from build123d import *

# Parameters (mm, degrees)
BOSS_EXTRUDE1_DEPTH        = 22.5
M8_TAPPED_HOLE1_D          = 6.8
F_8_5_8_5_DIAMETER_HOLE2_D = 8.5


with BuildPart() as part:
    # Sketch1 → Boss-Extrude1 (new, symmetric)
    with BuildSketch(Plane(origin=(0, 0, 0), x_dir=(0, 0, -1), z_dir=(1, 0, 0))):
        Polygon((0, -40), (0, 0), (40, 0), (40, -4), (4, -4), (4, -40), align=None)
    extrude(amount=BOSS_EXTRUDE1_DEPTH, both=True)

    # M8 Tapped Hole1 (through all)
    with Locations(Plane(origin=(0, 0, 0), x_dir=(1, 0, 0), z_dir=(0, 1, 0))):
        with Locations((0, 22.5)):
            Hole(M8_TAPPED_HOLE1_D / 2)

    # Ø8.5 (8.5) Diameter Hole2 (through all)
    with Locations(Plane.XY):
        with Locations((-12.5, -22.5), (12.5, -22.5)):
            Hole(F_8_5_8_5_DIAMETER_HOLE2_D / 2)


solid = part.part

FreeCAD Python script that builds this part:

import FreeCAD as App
import Part
import Sketcher
Q = App.Units.Quantity


def add_polygon(sketch, points):
    """Adds a closed chain of lines whose ends are joined by coincident constraints."""
    first, n = sketch.GeometryCount, len(points)
    for a, b in zip(points, points[1:] + points[:1]):
        sketch.addGeometry(Part.LineSegment(App.Vector(*a, 0), App.Vector(*b, 0)), False)
    for i in range(n):
        sketch.addConstraint(Sketcher.Constraint("Coincident", first + i, 2, first + (i + 1) % n, 1))

doc = App.newDocument("Part")
body = doc.addObject("PartDesign::Body", "Body")

# Sketch on YZ plane
sketch1 = body.newObject("Sketcher::SketchObject", "Sketch")
sketch1.AttachmentSupport = (doc.getObject("YZ_Plane"), [""])
sketch1.MapMode = "FlatFace"
add_polygon(sketch1, [(0, 0), (-40, 0), (-40, -4), (-4, -4), (-4, -40), (0, -40)])  # lines 0-5
sketch1.addConstraint([
    Sketcher.Constraint("Horizontal", 0),
    Sketcher.Constraint("Vertical", 1),
    Sketcher.Constraint("Horizontal", 2),
    Sketcher.Constraint("Vertical", 3),
    Sketcher.Constraint("Horizontal", 4),
    Sketcher.Constraint("Vertical", 5),
    Sketcher.Constraint("Coincident", 5, 2, -1, 1),
    Sketcher.Constraint("Equal", 4, 1),
    Sketcher.Constraint("Equal", 2, 3),
    Sketcher.Constraint("DistanceX", 0, 2, 0, 1, Q("40 mm")),
    Sketcher.Constraint("DistanceX", 2, 1, 2, 2, Q("36 mm")),
])
pad1 = body.newObject("PartDesign::Pad", "Pad")
pad1.Profile = sketch1
pad1.Length = 45
pad1.Midplane = True

# Sketch on XZ plane
sketch2 = body.newObject("Sketcher::SketchObject", "Sketch001")
sketch2.AttachmentSupport = (doc.getObject("XZ_Plane"), [""])
sketch2.MapMode = "FlatFace"
sketch2.addGeometry(Part.Circle(App.Vector(0, -22.5, 0), App.Vector(0, 0, 1), 3.4), False)
sketch2.addConstraint([
    Sketcher.Constraint("PointOnObject", 0, 3, -2),
    Sketcher.Constraint("Diameter", 0, Q("6.8 mm")),
    Sketcher.Constraint("DistanceY", 0, 3, -1, 1, Q("22.5 mm")),
])
doc.recompute()
hole = body.newObject("PartDesign::Hole", "Hole")
hole.Profile = sketch2
hole.ThreadType = "None"
hole.Diameter = 6.8
hole.DepthType = "ThroughAll"
hole.Reversed = True

# Sketch on XY plane
sketch3 = body.newObject("Sketcher::SketchObject", "Sketch002")
sketch3.AttachmentSupport = (doc.getObject("XY_Plane"), [""])
sketch3.MapMode = "FlatFace"
sketch3.addGeometry([
    Part.Circle(App.Vector(-12.5, -22.5, 0), App.Vector(0, 0, 1), 4.2),
    Part.Circle(App.Vector(12.5, -22.5, 0), App.Vector(0, 0, 1), 4.2),
], False)
sketch3.addConstraint([
    Sketcher.Constraint("Equal", 0, 1),
    Sketcher.Constraint("Symmetric", 0, 3, 1, 3, -2),
    Sketcher.Constraint("Diameter", 0, Q("8.5 mm")),
    Sketcher.Constraint("DistanceX", 0, 3, 1, 3, Q("25 mm")),
    Sketcher.Constraint("DistanceY", 0, 3, -1, 1, Q("22.5 mm")),
])
doc.recompute()
hole2 = body.newObject("PartDesign::Hole", "Hole001")
hole2.Profile = sketch3
hole2.ThreadType = "None"
hole2.Diameter = 8.5
hole2.DepthType = "ThroughAll"

doc.recompute()
